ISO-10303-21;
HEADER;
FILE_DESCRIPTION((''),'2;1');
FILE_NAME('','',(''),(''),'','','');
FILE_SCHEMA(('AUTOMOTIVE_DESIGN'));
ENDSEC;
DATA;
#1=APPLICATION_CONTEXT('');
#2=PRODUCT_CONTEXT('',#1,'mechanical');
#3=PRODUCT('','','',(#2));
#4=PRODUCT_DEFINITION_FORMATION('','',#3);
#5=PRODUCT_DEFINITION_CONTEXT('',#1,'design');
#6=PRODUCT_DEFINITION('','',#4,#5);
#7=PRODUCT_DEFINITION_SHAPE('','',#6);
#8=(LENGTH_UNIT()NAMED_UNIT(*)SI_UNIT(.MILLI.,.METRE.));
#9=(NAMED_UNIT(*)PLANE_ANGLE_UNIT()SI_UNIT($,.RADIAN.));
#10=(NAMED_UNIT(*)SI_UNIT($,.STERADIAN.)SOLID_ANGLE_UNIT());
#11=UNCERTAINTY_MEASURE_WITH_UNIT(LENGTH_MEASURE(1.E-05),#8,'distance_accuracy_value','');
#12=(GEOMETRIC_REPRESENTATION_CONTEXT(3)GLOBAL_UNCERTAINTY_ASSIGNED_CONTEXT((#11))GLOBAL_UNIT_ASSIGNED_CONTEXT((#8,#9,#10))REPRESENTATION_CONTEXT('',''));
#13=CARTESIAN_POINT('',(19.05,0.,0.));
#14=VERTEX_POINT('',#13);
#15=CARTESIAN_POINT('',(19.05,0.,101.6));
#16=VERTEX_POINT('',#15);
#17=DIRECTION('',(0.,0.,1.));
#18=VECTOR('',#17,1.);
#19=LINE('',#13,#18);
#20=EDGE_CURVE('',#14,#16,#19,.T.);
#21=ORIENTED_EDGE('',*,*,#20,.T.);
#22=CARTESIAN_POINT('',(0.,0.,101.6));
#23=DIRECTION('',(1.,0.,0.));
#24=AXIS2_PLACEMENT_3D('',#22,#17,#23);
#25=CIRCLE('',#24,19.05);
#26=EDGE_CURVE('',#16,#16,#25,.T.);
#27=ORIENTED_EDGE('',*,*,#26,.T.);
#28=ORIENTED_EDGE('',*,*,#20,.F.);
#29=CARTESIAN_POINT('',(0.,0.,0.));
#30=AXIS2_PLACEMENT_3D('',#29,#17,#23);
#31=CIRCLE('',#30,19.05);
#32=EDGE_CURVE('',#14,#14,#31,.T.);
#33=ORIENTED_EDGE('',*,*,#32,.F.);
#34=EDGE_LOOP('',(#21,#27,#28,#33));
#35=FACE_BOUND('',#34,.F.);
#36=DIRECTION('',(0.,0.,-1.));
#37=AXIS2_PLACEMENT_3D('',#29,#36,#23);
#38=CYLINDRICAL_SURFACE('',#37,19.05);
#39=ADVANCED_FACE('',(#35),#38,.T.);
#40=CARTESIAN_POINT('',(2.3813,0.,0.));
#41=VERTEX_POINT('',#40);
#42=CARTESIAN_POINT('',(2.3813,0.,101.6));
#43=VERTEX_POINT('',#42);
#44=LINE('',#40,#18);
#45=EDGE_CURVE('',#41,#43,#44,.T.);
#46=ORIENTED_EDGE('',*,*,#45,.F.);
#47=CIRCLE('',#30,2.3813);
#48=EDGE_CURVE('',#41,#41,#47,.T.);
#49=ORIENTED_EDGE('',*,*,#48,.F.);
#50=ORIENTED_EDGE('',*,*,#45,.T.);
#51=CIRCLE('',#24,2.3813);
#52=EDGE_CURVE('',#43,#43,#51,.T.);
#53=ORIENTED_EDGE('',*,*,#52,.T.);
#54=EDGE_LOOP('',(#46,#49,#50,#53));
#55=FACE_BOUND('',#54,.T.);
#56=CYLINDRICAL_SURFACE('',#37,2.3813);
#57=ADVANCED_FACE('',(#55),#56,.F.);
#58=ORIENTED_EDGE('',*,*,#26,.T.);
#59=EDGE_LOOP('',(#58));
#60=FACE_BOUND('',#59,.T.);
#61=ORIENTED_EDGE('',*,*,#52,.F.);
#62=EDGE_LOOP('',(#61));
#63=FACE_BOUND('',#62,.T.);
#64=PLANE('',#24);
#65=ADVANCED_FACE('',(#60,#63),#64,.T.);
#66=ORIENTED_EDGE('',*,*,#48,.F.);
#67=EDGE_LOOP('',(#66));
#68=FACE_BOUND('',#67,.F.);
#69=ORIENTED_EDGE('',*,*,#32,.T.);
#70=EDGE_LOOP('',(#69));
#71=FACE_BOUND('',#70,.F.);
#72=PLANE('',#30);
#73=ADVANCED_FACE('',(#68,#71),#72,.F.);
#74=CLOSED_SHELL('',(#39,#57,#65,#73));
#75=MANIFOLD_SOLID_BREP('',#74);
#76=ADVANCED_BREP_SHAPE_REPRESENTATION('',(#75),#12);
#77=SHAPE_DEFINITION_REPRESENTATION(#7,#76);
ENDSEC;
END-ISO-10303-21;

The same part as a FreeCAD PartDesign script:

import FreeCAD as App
import Part
import Sketcher

V = App.Vector
Q = App.Units.Quantity

doc = App.newDocument("Part")
params = doc.addObject("Spreadsheet::Sheet", "Params")
for row, (alias, value) in enumerate([
    ("sketch1_diameter", "1.5 in"),
    ("sketch1_diameter2", "0.1875 in"),
    ("pad1_length", "4 in"),
], start=1):
    params.set(f"A{row}", alias)
    params.set(f"B{row}", "=" + value)
    params.setAlias(f"B{row}", alias)

body = doc.addObject("PartDesign::Body", "Body")

sketch1 = doc.addObject("Sketcher::SketchObject", "Sketch")
body.addObject(sketch1)
sketch1.AttachmentSupport = (doc.XY_Plane, [""])
sketch1.MapMode = "FlatFace"
sketch1.addGeometry(Part.Circle(V(0, 0, 0), V(0, 0, 1), 19.05), False)
sketch1.addGeometry(Part.Circle(V(0, 0, 0), V(0, 0, 1), 2.3813), False)
sketch1.addConstraint(Sketcher.Constraint("Coincident", 0, 3, -1, 1))
sketch1.addConstraint(Sketcher.Constraint("Coincident", 1, 3, -1, 1))
sketch1.addConstraint(Sketcher.Constraint("Diameter", 0, Q("1.5 in")))
sketch1.addConstraint(Sketcher.Constraint("Diameter", 1, Q("0.1875 in")))
sketch1.setExpression("Constraints[2]", "Params.sketch1_diameter")
sketch1.setExpression("Constraints[3]", "Params.sketch1_diameter2")
pad1 = doc.addObject("PartDesign::Pad", "Pad")
body.addObject(pad1)
pad1.Profile = sketch1
pad1.setExpression("Length", "Params.pad1_length")

doc.recompute()
